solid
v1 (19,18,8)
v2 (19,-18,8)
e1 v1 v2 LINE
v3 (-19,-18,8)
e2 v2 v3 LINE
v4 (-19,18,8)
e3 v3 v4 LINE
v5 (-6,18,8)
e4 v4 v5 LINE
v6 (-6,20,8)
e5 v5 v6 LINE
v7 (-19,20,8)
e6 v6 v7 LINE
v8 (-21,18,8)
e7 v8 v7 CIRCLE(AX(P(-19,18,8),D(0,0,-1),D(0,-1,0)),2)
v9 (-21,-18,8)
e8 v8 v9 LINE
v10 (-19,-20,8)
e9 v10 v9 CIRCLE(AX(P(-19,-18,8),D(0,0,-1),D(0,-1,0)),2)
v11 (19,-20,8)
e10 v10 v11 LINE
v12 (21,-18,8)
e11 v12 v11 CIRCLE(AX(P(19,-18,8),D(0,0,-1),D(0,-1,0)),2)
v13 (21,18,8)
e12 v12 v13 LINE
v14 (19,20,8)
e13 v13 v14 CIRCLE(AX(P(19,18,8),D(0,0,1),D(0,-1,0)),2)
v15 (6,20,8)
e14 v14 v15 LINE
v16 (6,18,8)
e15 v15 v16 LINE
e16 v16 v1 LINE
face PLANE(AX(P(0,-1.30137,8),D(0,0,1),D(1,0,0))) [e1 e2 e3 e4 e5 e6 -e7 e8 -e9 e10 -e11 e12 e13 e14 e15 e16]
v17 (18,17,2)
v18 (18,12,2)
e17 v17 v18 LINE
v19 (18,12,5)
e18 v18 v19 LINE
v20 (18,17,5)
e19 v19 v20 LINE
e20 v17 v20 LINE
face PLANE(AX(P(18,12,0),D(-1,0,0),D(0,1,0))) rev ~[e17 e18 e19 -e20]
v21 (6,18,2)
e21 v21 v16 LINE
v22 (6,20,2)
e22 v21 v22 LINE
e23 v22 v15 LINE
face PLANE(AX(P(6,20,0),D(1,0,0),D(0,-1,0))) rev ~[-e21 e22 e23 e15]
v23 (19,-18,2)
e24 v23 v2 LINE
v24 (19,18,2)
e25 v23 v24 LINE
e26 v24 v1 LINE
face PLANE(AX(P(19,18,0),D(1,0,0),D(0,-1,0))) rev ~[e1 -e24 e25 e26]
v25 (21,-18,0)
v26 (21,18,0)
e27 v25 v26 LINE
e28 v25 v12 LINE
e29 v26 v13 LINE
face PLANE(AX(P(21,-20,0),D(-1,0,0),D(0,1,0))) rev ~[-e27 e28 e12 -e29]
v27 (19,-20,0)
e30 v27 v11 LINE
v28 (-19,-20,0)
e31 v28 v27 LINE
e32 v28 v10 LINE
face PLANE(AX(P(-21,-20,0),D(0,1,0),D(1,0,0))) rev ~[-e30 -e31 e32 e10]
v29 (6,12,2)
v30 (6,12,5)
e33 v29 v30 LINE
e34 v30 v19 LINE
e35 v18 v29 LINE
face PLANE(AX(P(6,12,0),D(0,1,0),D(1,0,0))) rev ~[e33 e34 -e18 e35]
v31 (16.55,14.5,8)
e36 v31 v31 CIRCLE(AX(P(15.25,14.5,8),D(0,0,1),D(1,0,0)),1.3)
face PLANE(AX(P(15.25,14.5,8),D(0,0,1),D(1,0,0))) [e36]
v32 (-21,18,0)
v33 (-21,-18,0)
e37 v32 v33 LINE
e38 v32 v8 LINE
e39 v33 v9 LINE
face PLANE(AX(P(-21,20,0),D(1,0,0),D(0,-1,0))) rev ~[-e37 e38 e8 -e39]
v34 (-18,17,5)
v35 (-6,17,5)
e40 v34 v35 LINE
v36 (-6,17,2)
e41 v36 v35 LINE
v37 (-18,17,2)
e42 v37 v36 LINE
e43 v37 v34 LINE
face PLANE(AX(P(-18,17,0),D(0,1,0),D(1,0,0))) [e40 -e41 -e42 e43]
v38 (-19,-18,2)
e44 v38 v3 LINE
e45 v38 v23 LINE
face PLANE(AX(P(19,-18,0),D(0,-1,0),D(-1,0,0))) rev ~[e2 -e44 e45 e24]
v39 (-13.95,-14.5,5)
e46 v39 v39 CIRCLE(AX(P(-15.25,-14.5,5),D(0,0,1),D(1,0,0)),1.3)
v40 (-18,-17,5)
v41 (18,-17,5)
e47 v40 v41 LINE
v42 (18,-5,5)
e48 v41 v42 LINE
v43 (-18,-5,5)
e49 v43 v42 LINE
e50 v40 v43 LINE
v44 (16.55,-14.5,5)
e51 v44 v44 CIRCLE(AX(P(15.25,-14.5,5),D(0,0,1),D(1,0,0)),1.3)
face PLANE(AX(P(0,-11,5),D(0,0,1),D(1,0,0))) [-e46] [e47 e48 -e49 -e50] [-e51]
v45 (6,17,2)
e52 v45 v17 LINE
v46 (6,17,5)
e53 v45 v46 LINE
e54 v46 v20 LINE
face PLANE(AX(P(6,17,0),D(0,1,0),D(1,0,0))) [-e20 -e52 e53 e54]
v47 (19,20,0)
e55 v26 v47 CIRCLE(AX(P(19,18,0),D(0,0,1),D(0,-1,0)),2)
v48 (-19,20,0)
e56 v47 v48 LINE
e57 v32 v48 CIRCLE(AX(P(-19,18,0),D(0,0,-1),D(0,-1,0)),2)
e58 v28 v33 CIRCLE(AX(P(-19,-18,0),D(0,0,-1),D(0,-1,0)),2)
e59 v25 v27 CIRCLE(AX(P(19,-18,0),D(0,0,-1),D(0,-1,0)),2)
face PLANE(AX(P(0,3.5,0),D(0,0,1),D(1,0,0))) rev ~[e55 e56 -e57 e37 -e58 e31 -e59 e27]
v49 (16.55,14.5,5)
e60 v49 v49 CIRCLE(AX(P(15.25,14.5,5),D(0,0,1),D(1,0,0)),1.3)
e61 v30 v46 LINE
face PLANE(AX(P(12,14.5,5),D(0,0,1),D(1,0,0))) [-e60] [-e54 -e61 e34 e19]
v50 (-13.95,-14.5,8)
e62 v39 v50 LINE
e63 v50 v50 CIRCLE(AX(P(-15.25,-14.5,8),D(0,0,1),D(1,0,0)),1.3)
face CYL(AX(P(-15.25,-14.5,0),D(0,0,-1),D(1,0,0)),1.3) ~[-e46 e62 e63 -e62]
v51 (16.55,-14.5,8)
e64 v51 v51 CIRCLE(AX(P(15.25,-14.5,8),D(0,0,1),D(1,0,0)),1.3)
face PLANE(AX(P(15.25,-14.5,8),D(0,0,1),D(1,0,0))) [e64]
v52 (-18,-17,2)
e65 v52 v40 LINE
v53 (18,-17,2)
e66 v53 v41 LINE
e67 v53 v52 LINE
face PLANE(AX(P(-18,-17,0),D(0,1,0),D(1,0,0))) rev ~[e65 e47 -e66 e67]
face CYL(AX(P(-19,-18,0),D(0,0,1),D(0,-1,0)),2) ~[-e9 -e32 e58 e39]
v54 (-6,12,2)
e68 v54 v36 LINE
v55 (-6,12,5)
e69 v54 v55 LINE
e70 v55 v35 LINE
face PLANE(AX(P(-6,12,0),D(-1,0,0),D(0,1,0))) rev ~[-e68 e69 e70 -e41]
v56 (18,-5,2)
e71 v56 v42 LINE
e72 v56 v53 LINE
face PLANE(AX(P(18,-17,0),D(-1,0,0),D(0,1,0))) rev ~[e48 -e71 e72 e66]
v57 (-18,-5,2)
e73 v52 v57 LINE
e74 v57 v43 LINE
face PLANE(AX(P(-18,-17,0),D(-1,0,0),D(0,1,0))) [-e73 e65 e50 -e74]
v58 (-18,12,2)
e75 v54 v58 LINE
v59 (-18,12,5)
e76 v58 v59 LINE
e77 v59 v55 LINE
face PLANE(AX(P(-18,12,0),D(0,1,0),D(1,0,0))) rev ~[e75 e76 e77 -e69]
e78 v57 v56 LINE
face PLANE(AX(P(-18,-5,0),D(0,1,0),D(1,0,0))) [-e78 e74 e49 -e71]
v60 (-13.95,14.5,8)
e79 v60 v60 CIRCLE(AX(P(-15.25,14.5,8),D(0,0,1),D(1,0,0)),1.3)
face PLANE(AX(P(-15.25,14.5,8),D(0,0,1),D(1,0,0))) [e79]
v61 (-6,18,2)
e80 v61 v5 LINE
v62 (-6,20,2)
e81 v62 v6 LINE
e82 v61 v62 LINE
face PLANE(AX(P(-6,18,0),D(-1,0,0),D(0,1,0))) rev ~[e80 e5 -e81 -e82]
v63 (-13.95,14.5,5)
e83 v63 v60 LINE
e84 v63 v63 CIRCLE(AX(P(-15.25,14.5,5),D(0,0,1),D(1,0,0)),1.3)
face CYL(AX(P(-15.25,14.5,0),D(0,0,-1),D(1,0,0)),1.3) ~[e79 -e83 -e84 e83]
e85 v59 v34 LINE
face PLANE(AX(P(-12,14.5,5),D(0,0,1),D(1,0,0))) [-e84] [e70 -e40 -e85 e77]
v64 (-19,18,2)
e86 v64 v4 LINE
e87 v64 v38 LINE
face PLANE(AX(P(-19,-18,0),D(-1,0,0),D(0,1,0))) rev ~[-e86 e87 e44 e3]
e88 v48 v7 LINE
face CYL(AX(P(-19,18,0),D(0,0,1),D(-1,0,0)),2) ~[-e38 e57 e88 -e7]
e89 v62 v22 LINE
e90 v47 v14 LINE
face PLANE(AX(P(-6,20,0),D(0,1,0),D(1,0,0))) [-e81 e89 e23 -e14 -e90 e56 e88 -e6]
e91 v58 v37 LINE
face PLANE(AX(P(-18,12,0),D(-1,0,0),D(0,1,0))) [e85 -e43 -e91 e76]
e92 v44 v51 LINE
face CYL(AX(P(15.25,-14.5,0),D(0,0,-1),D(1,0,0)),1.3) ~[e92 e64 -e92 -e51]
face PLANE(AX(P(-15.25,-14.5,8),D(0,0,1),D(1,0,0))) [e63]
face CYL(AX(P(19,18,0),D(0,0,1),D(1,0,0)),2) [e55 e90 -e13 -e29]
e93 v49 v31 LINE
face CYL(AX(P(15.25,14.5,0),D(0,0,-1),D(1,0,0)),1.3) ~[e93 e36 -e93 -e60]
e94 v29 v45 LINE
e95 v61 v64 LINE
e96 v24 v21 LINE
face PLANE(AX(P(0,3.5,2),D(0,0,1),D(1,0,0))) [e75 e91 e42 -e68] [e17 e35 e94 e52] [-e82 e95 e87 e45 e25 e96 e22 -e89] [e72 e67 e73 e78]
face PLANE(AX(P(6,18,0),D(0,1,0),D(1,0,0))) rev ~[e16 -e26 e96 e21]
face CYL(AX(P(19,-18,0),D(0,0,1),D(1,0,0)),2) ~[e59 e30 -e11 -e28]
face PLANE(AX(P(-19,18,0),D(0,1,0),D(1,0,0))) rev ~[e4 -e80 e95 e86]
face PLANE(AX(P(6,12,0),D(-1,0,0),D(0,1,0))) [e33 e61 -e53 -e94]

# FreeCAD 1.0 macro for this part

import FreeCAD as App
import Part
import Sketcher
Q = App.Units.Quantity


def edges_at(feature, points):
    """Names of the edges that pass closest to the given points."""
    edges = feature.Shape.Edges
    near = lambda p: min(range(len(edges)), key=lambda i: edges[i].distToShape(Part.Vertex(*p))[0])
    return sorted({f"Edge{near(p) + 1}" for p in points})

doc = App.newDocument("Part")
body = doc.addObject("PartDesign::Body", "Body")

# Sketch on XY plane
sketch1 = body.newObject("Sketcher::SketchObject", "Sketch")
sketch1.AttachmentSupport = (doc.getObject("XY_Plane"), [""])
sketch1.MapMode = "FlatFace"
sketch1.addGeometry([
    Part.LineSegment(App.Vector(-18, -5, 0), App.Vector(-18, -17, 0)),  # 0
    Part.LineSegment(App.Vector(-18, -17, 0), App.Vector(18, -17, 0)),  # 1
    Part.LineSegment(App.Vector(18, -17, 0), App.Vector(18, -5, 0)),  # 2
    Part.LineSegment(App.Vector(18, -5, 0), App.Vector(-18, -5, 0)),  # 3
    Part.Circle(App.Vector(-15.2, -14.5, 0), App.Vector(0, 0, 1), 1.3),  # 4
    Part.Circle(App.Vector(15.2, -14.5, 0), App.Vector(0, 0, 1), 1.3),  # 5
], False)
sketch1.addConstraint([
    Sketcher.Constraint("Coincident", 0, 2, 1, 1),
    Sketcher.Constraint("Coincident", 1, 2, 2, 1),
    Sketcher.Constraint("Coincident", 2, 2, 3, 1),
    Sketcher.Constraint("Coincident", 3, 2, 0, 1),
    Sketcher.Constraint("Vertical", 0),
    Sketcher.Constraint("Horizontal", 1),
    Sketcher.Constraint("Vertical", 2),
    Sketcher.Constraint("Horizontal", 3),
    Sketcher.Constraint("Equal", 4, 5),
    Sketcher.Constraint("Symmetric", 4, 3, 5, 3, -2),
    Sketcher.Constraint("Diameter", 4, Q("2.6 mm")),
    Sketcher.Constraint("DistanceX", 1, 1, 1, 2, Q("36 mm")),
    Sketcher.Constraint("DistanceY", 0, 2, 0, 1, Q("12 mm")),
    Sketcher.Constraint("DistanceX", 0, 2, -1, 1, Q("18 mm")),
    Sketcher.Constraint("DistanceY", 0, 2, -1, 1, Q("17 mm")),
    Sketcher.Constraint("DistanceY", 4, 3, -1, 1, Q("14.5 mm")),
    Sketcher.Constraint("DistanceX", 4, 3, 5, 3, Q("30.5 mm")),
])
pad1 = body.newObject("PartDesign::Pad", "Pad")
pad1.Profile = sketch1
pad1.Length = 5
body2 = doc.addObject("PartDesign::Body", "Body001")

# Sketch on XY plane
sketch2 = body2.newObject("Sketcher::SketchObject", "Sketch001")
sketch2.AttachmentSupport = (doc.getObject("XY_Plane001"), [""])
sketch2.MapMode = "FlatFace"
sketch2.addGeometry([
    Part.LineSegment(App.Vector(-18, 17, 0), App.Vector(-18, 12, 0)),  # 0
    Part.LineSegment(App.Vector(-18, 12, 0), App.Vector(-6, 12, 0)),  # 1
    Part.LineSegment(App.Vector(-6, 12, 0), App.Vector(-6, 17, 0)),  # 2
    Part.LineSegment(App.Vector(-6, 17, 0), App.Vector(-18, 17, 0)),  # 3
    Part.Circle(App.Vector(-15.2, 14.5, 0), App.Vector(0, 0, 1), 1.3),  # 4
], False)
sketch2.addConstraint([
    Sketcher.Constraint("Coincident", 0, 2, 1, 1),
    Sketcher.Constraint("Coincident", 1, 2, 2, 1),
    Sketcher.Constraint("Coincident", 2, 2, 3, 1),
    Sketcher.Constraint("Coincident", 3, 2, 0, 1),
    Sketcher.Constraint("Vertical", 0),
    Sketcher.Constraint("Horizontal", 1),
    Sketcher.Constraint("Vertical", 2),
    Sketcher.Constraint("Horizontal", 3),
    Sketcher.Constraint("Diameter", 4, Q("2.6 mm")),
    Sketcher.Constraint("DistanceX", 1, 1, 1, 2, Q("12 mm")),
    Sketcher.Constraint("DistanceY", 0, 2, 0, 1, Q("5 mm")),
    Sketcher.Constraint("DistanceX", 0, 2, -1, 1, Q("18 mm")),
    Sketcher.Constraint("DistanceY", -1, 1, 0, 2, Q("12 mm")),
    Sketcher.Constraint("DistanceY", -1, 1, 4, 3, Q("14.5 mm")),
    Sketcher.Constraint("DistanceX", 4, 3, -1, 1, Q("15.25 mm")),
])
pad2 = body2.newObject("PartDesign::Pad", "Pad001")
pad2.Profile = sketch2
pad2.Length = 5
body3 = doc.addObject("PartDesign::Body", "Body002")

# Sketch on XY plane
sketch3 = body3.newObject("Sketcher::SketchObject", "Sketch002")
sketch3.AttachmentSupport = (doc.getObject("XY_Plane002"), [""])
sketch3.MapMode = "FlatFace"
sketch3.addGeometry([
    Part.LineSegment(App.Vector(6, 17, 0), App.Vector(6, 12, 0)),  # 0
    Part.LineSegment(App.Vector(6, 12, 0), App.Vector(18, 12, 0)),  # 1
    Part.LineSegment(App.Vector(18, 12, 0), App.Vector(18, 17, 0)),  # 2
    Part.LineSegment(App.Vector(18, 17, 0), App.Vector(6, 17, 0)),  # 3
    Part.Circle(App.Vector(15.2, 14.5, 0), App.Vector(0, 0, 1), 1.3),  # 4
], False)
sketch3.addConstraint([
    Sketcher.Constraint("Coincident", 0, 2, 1, 1),
    Sketcher.Constraint("Coincident", 1, 2, 2, 1),
    Sketcher.Constraint("Coincident", 2, 2, 3, 1),
    Sketcher.Constraint("Coincident", 3, 2, 0, 1),
    Sketcher.Constraint("Vertical", 0),
    Sketcher.Constraint("Horizontal", 1),
    Sketcher.Constraint("Vertical", 2),
    Sketcher.Constraint("Horizontal", 3),
    Sketcher.Constraint("Diameter", 4, Q("2.6 mm")),
    Sketcher.Constraint("DistanceX", 1, 1, 1, 2, Q("12 mm")),
    Sketcher.Constraint("DistanceY", 0, 2, 0, 1, Q("5 mm")),
    Sketcher.Constraint("DistanceX", -1, 1, 0, 2, Q("6 mm")),
    Sketcher.Constraint("DistanceY", -1, 1, 0, 2, Q("12 mm")),
    Sketcher.Constraint("DistanceY", -1, 1, 4, 3, Q("14.5 mm")),
    Sketcher.Constraint("DistanceX", -1, 1, 4, 3, Q("15.25 mm")),
])
pad3 = body3.newObject("PartDesign::Pad", "Pad002")
pad3.Profile = sketch3
pad3.Length = 5
body.AllowCompound = True
doc.recompute()

boolean = body.newObject("PartDesign::Boolean", "Boolean")
boolean.Type = "Fuse"
boolean.addObjects([body2])
doc.recompute()

boolean2 = body.newObject("PartDesign::Boolean", "Boolean001")
boolean2.Type = "Fuse"
boolean2.addObjects([body3])

# Sketch on XY plane
sketch4 = body.newObject("Sketcher::SketchObject", "Sketch003")
sketch4.AttachmentSupport = (doc.getObject("XY_Plane"), [""])
sketch4.MapMode = "FlatFace"
sketch4.addGeometry([
    Part.LineSegment(App.Vector(19, 18, 0), App.Vector(6, 18, 0)),  # 0
    Part.LineSegment(App.Vector(6, 18, 0), App.Vector(6, 20, 0)),  # 1
    Part.LineSegment(App.Vector(6, 20, 0), App.Vector(-6, 20, 0)),  # 2
    Part.LineSegment(App.Vector(-6, 20, 0), App.Vector(-6, 18, 0)),  # 3
    Part.LineSegment(App.Vector(-6, 18, 0), App.Vector(-19, 18, 0)),  # 4
    Part.LineSegment(App.Vector(-19, 18, 0), App.Vector(-19, -18, 0)),  # 5
    Part.LineSegment(App.Vector(-19, -18, 0), App.Vector(19, -18, 0)),  # 6
    Part.LineSegment(App.Vector(19, -18, 0), App.Vector(19, 18, 0)),  # 7
    Part.LineSegment(App.Vector(-18, -5, 0), App.Vector(18, -5, 0)),  # 8
    Part.LineSegment(App.Vector(18, -5, 0), App.Vector(18, -17, 0)),  # 9
    Part.LineSegment(App.Vector(18, -17, 0), App.Vector(-18, -17, 0)),  # 10
    Part.LineSegment(App.Vector(-18, -17, 0), App.Vector(-18, -5, 0)),  # 11
    Part.LineSegment(App.Vector(-18, 17, 0), App.Vector(-6, 17, 0)),  # 12
    Part.LineSegment(App.Vector(-6, 17, 0), App.Vector(-6, 12, 0)),  # 13
    Part.LineSegment(App.Vector(-6, 12, 0), App.Vector(-18, 12, 0)),  # 14
    Part.LineSegment(App.Vector(-18, 12, 0), App.Vector(-18, 17, 0)),  # 15
    Part.LineSegment(App.Vector(6, 12, 0), App.Vector(6, 17, 0)),  # 16
    Part.LineSegment(App.Vector(6, 17, 0), App.Vector(18, 17, 0)),  # 17
    Part.LineSegment(App.Vector(18, 17, 0), App.Vector(18, 12, 0)),  # 18
    Part.LineSegment(App.Vector(18, 12, 0), App.Vector(6, 12, 0)),  # 19
], False)
sketch4.addConstraint([
    Sketcher.Constraint("Coincident", 0, 2, 1, 1),
    Sketcher.Constraint("Coincident", 1, 2, 2, 1),
    Sketcher.Constraint("Coincident", 2, 2, 3, 1),
    Sketcher.Constraint("Coincident", 3, 2, 4, 1),
    Sketcher.Constraint("Coincident", 4, 2, 5, 1),
    Sketcher.Constraint("Coincident", 5, 2, 6, 1),
    Sketcher.Constraint("Coincident", 6, 2, 7, 1),
    Sketcher.Constraint("Coincident", 7, 2, 0, 1),
    Sketcher.Constraint("Coincident", 8, 2, 9, 1),
    Sketcher.Constraint("Coincident", 9, 2, 10, 1),
    Sketcher.Constraint("Coincident", 10, 2, 11, 1),
    Sketcher.Constraint("Coincident", 11, 2, 8, 1),
    Sketcher.Constraint("Coincident", 12, 2, 13, 1),
    Sketcher.Constraint("Coincident", 13, 2, 14, 1),
    Sketcher.Constraint("Coincident", 14, 2, 15, 1),
    Sketcher.Constraint("Coincident", 15, 2, 12, 1),
    Sketcher.Constraint("Coincident", 16, 2, 17, 1),
    Sketcher.Constraint("Coincident", 17, 2, 18, 1),
    Sketcher.Constraint("Coincident", 18, 2, 19, 1),
    Sketcher.Constraint("Coincident", 19, 2, 16, 1),
    Sketcher.Constraint("Horizontal", 0),
    Sketcher.Constraint("Vertical", 1),
    Sketcher.Constraint("Horizontal", 2),
    Sketcher.Constraint("Vertical", 3),
    Sketcher.Constraint("Horizontal", 4),
    Sketcher.Constraint("Vertical", 5),
    Sketcher.Constraint("Horizontal", 6),
    Sketcher.Constraint("Vertical", 7),
    Sketcher.Constraint("Horizontal", 8),
    Sketcher.Constraint("Vertical", 9),
    Sketcher.Constraint("Horizontal", 10),
    Sketcher.Constraint("Vertical", 11),
    Sketcher.Constraint("Horizontal", 12),
    Sketcher.Constraint("Vertical", 13),
    Sketcher.Constraint("Horizontal", 14),
    Sketcher.Constraint("Vertical", 15),
    Sketcher.Constraint("Vertical", 16),
    Sketcher.Constraint("Horizontal", 17),
    Sketcher.Constraint("Vertical", 18),
    Sketcher.Constraint("Horizontal", 19),
    Sketcher.Constraint("Symmetric", 4, 2, 6, 2, -1, 1),
    Sketcher.Constraint("Symmetric", 9, 2, 15, 2, -1, 1),
    Sketcher.Constraint("Symmetric", 10, 2, 17, 2, -1, 1),
    Sketcher.Constraint("Symmetric", 0, 2, 3, 2, -2),
    Sketcher.Constraint("Symmetric", 14, 2, 18, 2, -2),
    Sketcher.Constraint("Vertical", 3, 2, 12, 2),
    Sketcher.Constraint("Vertical", 1, 2, 16, 2),
    Sketcher.Constraint("Equal", 2, 12),
    Sketcher.Constraint("Equal", 10, 5),
    Sketcher.Constraint("Equal", 19, 9),
    Sketcher.Constraint("DistanceX", 0, 2, 0, 1, Q("13 mm")),
    Sketcher.Constraint("DistanceX", 2, 2, 2, 1, Q("12 mm")),
    Sketcher.Constraint("DistanceY", 1, 1, 1, 2, Q("2 mm")),
    Sketcher.Constraint("DistanceY", 13, 2, 13, 1, Q("5 mm")),
    Sketcher.Constraint("DistanceY", 8, 2, -1, 1, Q("5 mm")),
])
pad4 = body.newObject("PartDesign::Pad", "Pad003")
pad4.Profile = sketch4
pad4.Length = 2

# Sketch on XY plane
sketch5 = body.newObject("Sketcher::SketchObject", "Sketch004")
sketch5.AttachmentSupport = (doc.getObject("XY_Plane"), [""])
sketch5.MapMode = "FlatFace"
sketch5.addGeometry([
    Part.Circle(App.Vector(-15.2, 14.5, 0), App.Vector(0, 0, 1), 1.3),  # 0
    Part.Circle(App.Vector(15.2, 14.5, 0), App.Vector(0, 0, 1), 1.3),  # 1
    Part.Circle(App.Vector(15.2, -14.5, 0), App.Vector(0, 0, 1), 1.3),  # 2
    Part.Circle(App.Vector(-15.2, -14.5, 0), App.Vector(0, 0, 1), 1.3),  # 3
    Part.LineSegment(App.Vector(-19, 18, 0), App.Vector(-6, 18, 0)),  # 4
    Part.LineSegment(App.Vector(-6, 18, 0), App.Vector(-6, 20, 0)),  # 5
    Part.LineSegment(App.Vector(-6, 20, 0), App.Vector(-21, 20, 0)),  # 6
    Part.LineSegment(App.Vector(-21, 20, 0), App.Vector(-21, -20, 0)),  # 7
    Part.LineSegment(App.Vector(-21, -20, 0), App.Vector(21, -20, 0)),  # 8
    Part.LineSegment(App.Vector(21, -20, 0), App.Vector(21, 20, 0)),  # 9
    Part.LineSegment(App.Vector(21, 20, 0), App.Vector(6, 20, 0)),  # 10
    Part.LineSegment(App.Vector(6, 20, 0), App.Vector(6, 18, 0)),  # 11
    Part.LineSegment(App.Vector(6, 18, 0), App.Vector(19, 18, 0)),  # 12
    Part.LineSegment(App.Vector(19, 18, 0), App.Vector(19, -18, 0)),  # 13
    Part.LineSegment(App.Vector(19, -18, 0), App.Vector(-19, -18, 0)),  # 14
    Part.LineSegment(App.Vector(-19, -18, 0), App.Vector(-19, 18, 0)),  # 15
], False)
sketch5.addConstraint([
    Sketcher.Constraint("Coincident", 4, 2, 5, 1),
    Sketcher.Constraint("Coincident", 5, 2, 6, 1),
    Sketcher.Constraint("Coincident", 6, 2, 7, 1),
    Sketcher.Constraint("Coincident", 7, 2, 8, 1),
    Sketcher.Constraint("Coincident", 8, 2, 9, 1),
    Sketcher.Constraint("Coincident", 9, 2, 10, 1),
    Sketcher.Constraint("Coincident", 10, 2, 11, 1),
    Sketcher.Constraint("Coincident", 11, 2, 12, 1),
    Sketcher.Constraint("Coincident", 12, 2, 13, 1),
    Sketcher.Constraint("Coincident", 13, 2, 14, 1),
    Sketcher.Constraint("Coincident", 14, 2, 15, 1),
    Sketcher.Constraint("Coincident", 15, 2, 4, 1),
    Sketcher.Constraint("Horizontal", 4),
    Sketcher.Constraint("Vertical", 5),
    Sketcher.Constraint("Horizontal", 6),
    Sketcher.Constraint("Vertical", 7),
    Sketcher.Constraint("Horizontal", 8),
    Sketcher.Constraint("Vertical", 9),
    Sketcher.Constraint("Horizontal", 10),
    Sketcher.Constraint("Vertical", 11),
    Sketcher.Constraint("Horizontal", 12),
    Sketcher.Constraint("Vertical", 13),
    Sketcher.Constraint("Horizontal", 14),
    Sketcher.Constraint("Vertical", 15),
    Sketcher.Constraint("Equal", 0, 1),
    Sketcher.Constraint("Equal", 1, 2),
    Sketcher.Constraint("Equal", 2, 3),
    Sketcher.Constraint("Symmetric", 0, 3, 2, 3, -1, 1),
    Sketcher.Constraint("Symmetric", 1, 3, 3, 3, -1, 1),
    Sketcher.Constraint("Symmetric", 6, 2, 8, 2, -1, 1),
    Sketcher.Constraint("Symmetric", 12, 2, 14, 2, -1, 1),
    Sketcher.Constraint("Symmetric", 0, 3, 1, 3, -2),
    Sketcher.Constraint("Symmetric", 5, 2, 10, 2, -2),
    Sketcher.Constraint("Horizontal", 4, 2, 11, 2),
    Sketcher.Constraint("Diameter", 0, Q("2.6 mm")),
    Sketcher.Constraint("DistanceX", 4, 1, 4, 2, Q("13 mm")),
    Sketcher.Constraint("DistanceX", 6, 2, 6, 1, Q("15 mm")),
    Sketcher.Constraint("DistanceX", 8, 1, 8, 2, Q("42 mm")),
    Sketcher.Constraint("DistanceY", 5, 1, 5, 2, Q("2 mm")),
    Sketcher.Constraint("DistanceY", 7, 2, 7, 1, Q("40 mm")),
    Sketcher.Constraint("DistanceY", 2, 3, 1, 3, Q("29 mm")),
    Sketcher.Constraint("DistanceX", 0, 3, 1, 3, Q("30.5 mm")),
])
pad5 = body.newObject("PartDesign::Pad", "Pad004")
pad5.Profile = sketch5
pad5.Length = 8
doc.recompute()

fillet = body.newObject("PartDesign::Fillet", "Fillet")
fillet.Base = (pad5, edges_at(pad5, [
    (-21, -20, 4),
    (21, -20, 4),
    (21, 20, 4),
    (-21, 20, 4),
]))
fillet.Radius = 2

doc.recompute()
